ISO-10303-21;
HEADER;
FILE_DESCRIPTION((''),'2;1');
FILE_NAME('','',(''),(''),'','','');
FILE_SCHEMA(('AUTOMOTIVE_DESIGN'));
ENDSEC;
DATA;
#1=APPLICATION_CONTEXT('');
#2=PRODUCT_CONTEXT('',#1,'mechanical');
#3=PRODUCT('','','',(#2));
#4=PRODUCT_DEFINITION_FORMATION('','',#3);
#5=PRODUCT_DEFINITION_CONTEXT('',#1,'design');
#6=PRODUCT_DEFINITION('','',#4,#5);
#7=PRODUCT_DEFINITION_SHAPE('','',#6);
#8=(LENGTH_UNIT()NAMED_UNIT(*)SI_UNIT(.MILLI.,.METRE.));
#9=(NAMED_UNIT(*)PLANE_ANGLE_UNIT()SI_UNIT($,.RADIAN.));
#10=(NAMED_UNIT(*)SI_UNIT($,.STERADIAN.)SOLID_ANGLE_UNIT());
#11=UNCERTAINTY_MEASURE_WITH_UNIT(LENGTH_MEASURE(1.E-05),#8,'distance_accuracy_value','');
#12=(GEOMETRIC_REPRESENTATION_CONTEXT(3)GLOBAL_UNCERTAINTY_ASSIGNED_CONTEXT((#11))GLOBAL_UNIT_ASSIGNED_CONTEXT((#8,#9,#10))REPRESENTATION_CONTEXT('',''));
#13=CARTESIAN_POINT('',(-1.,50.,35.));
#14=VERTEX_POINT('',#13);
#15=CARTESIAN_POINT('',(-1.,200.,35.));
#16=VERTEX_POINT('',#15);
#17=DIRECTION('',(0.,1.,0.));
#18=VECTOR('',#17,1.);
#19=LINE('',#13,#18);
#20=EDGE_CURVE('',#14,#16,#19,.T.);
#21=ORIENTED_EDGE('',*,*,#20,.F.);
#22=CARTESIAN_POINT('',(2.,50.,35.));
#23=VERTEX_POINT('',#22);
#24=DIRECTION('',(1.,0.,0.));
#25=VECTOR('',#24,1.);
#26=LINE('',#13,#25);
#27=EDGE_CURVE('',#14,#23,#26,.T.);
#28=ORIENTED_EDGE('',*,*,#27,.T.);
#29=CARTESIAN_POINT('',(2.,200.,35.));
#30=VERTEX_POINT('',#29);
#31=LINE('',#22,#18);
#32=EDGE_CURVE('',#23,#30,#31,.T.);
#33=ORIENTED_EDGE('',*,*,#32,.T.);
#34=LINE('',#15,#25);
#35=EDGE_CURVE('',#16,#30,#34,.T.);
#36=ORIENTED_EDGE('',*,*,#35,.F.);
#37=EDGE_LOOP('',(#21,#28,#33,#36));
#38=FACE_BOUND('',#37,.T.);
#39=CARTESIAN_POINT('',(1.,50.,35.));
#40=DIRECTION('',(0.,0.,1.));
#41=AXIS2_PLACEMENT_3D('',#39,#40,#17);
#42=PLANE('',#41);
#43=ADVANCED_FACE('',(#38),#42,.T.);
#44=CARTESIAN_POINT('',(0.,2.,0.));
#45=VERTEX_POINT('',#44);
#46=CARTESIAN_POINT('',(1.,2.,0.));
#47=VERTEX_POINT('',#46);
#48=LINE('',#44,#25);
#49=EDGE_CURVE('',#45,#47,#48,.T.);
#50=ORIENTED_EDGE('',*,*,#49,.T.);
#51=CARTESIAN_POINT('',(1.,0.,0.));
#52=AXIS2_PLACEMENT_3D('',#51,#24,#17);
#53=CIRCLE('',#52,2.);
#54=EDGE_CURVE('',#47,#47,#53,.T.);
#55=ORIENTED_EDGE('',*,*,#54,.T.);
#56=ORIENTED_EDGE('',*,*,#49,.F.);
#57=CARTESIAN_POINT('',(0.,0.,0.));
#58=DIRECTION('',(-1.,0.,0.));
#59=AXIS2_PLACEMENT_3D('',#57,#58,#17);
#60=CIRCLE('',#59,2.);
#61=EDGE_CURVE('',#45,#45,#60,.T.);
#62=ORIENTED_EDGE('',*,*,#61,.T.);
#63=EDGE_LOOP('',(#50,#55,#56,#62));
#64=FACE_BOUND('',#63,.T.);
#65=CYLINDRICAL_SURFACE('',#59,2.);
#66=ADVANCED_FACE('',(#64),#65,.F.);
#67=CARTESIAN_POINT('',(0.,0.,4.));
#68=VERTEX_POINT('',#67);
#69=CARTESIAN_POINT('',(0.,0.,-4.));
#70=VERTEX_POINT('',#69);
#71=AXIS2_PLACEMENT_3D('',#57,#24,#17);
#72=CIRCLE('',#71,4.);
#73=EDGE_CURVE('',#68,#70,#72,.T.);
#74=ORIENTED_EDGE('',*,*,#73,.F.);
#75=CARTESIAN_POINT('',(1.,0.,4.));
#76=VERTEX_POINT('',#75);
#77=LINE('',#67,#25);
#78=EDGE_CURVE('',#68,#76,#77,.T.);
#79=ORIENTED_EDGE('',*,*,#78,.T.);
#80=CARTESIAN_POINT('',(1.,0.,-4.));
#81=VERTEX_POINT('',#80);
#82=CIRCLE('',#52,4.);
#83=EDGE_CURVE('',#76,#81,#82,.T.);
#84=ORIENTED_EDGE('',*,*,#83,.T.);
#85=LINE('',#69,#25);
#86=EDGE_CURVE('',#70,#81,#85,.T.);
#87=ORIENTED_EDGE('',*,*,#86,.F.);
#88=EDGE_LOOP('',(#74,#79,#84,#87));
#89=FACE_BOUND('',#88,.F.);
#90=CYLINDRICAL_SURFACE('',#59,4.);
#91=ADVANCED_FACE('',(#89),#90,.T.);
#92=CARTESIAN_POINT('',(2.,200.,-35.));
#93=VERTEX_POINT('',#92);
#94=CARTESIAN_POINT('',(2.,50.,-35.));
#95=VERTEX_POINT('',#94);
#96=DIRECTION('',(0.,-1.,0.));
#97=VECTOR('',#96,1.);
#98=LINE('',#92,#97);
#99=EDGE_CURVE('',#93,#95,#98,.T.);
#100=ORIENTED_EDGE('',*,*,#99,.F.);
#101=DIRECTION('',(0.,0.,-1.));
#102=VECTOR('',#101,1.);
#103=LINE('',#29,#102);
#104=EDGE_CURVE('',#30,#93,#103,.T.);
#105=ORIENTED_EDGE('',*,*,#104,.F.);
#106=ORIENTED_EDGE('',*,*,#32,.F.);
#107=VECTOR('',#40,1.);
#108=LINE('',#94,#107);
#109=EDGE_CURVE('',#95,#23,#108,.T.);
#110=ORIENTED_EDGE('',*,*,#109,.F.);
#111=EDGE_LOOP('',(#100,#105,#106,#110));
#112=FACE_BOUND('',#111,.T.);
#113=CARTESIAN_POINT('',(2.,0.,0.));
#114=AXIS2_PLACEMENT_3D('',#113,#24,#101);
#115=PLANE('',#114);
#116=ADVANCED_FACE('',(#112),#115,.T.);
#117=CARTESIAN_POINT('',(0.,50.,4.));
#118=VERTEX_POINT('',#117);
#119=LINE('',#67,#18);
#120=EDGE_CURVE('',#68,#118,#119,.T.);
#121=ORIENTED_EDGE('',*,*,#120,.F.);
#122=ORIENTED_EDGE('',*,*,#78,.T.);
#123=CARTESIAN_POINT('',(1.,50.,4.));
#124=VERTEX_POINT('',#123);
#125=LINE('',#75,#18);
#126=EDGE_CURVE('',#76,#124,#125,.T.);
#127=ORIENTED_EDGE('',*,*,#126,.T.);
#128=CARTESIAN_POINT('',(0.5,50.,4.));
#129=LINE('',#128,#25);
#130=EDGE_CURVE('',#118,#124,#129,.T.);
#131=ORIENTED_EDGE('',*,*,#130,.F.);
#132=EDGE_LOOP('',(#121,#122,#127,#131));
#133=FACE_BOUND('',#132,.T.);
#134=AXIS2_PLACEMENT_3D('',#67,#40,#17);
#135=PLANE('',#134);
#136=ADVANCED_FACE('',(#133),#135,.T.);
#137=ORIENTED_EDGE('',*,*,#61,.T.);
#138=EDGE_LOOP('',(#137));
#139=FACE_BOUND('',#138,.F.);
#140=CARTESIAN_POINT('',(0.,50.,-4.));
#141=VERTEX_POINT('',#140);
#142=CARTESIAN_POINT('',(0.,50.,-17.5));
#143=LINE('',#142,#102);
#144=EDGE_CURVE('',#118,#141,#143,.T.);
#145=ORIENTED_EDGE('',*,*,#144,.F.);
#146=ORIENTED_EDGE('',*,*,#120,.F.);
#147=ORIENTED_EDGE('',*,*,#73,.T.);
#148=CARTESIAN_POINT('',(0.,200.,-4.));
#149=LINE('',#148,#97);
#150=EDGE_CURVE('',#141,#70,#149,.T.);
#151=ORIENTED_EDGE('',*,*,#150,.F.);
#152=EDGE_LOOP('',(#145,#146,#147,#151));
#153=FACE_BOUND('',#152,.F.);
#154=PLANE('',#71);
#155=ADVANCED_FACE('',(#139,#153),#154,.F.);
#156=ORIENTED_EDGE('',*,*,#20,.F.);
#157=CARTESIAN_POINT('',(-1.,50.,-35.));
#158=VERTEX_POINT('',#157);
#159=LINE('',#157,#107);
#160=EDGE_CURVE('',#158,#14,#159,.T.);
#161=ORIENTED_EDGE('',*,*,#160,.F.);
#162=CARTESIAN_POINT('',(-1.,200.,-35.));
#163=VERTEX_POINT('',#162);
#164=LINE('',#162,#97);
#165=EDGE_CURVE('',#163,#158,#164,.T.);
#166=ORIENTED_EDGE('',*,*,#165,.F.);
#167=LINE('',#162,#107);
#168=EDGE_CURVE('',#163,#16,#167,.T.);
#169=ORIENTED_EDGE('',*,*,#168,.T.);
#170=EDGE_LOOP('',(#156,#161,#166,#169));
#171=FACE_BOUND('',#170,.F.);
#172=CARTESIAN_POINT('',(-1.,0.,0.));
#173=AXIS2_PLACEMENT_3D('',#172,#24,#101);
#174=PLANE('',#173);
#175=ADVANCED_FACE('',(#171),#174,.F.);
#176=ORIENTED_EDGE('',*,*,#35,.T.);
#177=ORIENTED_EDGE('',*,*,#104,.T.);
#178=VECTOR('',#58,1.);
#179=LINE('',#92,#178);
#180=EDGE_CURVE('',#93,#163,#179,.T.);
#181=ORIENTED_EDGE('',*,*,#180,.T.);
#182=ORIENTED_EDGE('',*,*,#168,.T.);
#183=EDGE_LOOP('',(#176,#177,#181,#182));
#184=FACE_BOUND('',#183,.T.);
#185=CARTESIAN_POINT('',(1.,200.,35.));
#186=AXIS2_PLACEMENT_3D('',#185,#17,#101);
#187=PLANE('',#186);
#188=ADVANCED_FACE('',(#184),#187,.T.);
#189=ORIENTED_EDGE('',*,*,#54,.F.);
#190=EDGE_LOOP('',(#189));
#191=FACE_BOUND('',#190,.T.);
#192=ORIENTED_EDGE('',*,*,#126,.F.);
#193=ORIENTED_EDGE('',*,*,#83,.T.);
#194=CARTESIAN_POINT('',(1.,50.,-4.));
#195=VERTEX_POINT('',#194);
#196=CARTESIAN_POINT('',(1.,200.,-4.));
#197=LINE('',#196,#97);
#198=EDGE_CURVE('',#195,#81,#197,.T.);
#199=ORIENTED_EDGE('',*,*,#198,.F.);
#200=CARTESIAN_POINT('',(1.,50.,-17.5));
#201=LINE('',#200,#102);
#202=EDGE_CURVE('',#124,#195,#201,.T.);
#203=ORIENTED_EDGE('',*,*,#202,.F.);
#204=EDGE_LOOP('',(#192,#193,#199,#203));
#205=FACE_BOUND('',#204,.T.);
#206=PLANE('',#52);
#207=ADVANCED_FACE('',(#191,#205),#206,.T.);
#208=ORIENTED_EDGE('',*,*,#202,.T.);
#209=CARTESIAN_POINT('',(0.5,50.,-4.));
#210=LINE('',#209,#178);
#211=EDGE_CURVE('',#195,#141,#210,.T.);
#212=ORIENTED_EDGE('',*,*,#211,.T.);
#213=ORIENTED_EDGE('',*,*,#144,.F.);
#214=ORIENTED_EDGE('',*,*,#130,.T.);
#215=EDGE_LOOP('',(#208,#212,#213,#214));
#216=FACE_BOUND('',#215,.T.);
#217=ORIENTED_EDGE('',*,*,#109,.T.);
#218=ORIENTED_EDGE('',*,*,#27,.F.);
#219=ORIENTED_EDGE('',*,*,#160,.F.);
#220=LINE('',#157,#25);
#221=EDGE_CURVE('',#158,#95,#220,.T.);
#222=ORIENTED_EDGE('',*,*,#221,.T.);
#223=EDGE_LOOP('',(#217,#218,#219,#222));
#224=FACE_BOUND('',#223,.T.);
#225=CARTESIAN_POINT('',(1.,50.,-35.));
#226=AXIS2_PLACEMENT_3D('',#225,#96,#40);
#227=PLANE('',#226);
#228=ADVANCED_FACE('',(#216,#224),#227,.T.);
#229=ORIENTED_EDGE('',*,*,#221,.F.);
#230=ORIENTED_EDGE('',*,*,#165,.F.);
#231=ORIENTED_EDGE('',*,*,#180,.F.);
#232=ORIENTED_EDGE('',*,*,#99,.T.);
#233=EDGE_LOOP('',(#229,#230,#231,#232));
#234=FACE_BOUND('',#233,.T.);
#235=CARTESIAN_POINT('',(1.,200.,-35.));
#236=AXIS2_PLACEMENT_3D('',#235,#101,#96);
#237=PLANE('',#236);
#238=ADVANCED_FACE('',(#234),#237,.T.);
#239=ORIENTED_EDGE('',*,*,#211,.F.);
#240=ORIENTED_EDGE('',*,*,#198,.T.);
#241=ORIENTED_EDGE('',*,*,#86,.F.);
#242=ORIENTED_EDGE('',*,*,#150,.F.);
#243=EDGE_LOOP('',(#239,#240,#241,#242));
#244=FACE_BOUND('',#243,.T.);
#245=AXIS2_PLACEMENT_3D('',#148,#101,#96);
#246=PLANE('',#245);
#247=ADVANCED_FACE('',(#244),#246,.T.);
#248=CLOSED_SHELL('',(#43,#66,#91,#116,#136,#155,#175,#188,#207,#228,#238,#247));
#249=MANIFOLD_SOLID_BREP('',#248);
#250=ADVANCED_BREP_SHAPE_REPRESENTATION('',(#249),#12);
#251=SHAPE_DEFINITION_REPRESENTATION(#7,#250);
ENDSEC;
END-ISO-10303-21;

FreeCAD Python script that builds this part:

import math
import FreeCAD as App
import Part
import Sketcher
from FreeCAD import Vector
Q = App.Units.Quantity

doc = App.newDocument("Part")
body = doc.addObject("PartDesign::Body", "Body")

# Sketch on YZ plane
sketch1 = doc.addObject("Sketcher::SketchObject", "Sketch")
body.addObject(sketch1)
sketch1.AttachmentSupport = (doc.YZ_Plane, [""])
sketch1.MapMode = "FlatFace"
sketch1.addGeometry([
    Part.LineSegment(Vector(0, -4, 0), Vector(200, -4, 0)),  # 0
    Part.LineSegment(Vector(200, -4, 0), Vector(200, 4, 0)),  # 1
    Part.LineSegment(Vector(200, 4, 0), Vector(0, 4, 0)),  # 2
    Part.ArcOfCircle(Part.Circle(Vector(0, 0, 0), Vector(0, 0, 1), 4), math.radians(90), math.radians(270)),  # 3
    Part.Circle(Vector(0, 0, 0), Vector(0, 0, 1), 2),  # 4
], False)
sketch1.addConstraint([
    Sketcher.Constraint("Coincident", 0, 2, 1, 1),
    Sketcher.Constraint("Coincident", 1, 2, 2, 1),
    Sketcher.Constraint("Tangent", 2, 2, 3, 1),
    Sketcher.Constraint("Tangent", 3, 2, 0, 1),
    Sketcher.Constraint("Horizontal", 0),
    Sketcher.Constraint("Vertical", 1),
    Sketcher.Constraint("Horizontal", 2),
    Sketcher.Constraint("Coincident", 3, 3, -1, 1),
    Sketcher.Constraint("Coincident", 4, 3, -1, 1),
    Sketcher.Constraint("Diameter", 4, Q("4 mm")),
    Sketcher.Constraint("Radius", 3, Q("4 mm")),
    Sketcher.Constraint("DistanceX", 0, 1, 0, 2, Q("200 mm")),
])
pad1 = doc.addObject("PartDesign::Pad", "Pad")
body.addObject(pad1)
pad1.Profile = sketch1
pad1.Length = 1

# Sketch on YZ plane
sketch2 = doc.addObject("Sketcher::SketchObject", "Sketch001")
body.addObject(sketch2)
sketch2.AttachmentSupport = (doc.YZ_Plane, [""])
sketch2.MapMode = "FlatFace"
sketch2.AttachmentOffset = App.Placement(Vector(0, 0, 1), App.Rotation())
sketch2.addGeometry([
    Part.LineSegment(Vector(200, -35, 0), Vector(200, 35, 0)),
    Part.LineSegment(Vector(200, 35, 0), Vector(50, 35, 0)),
    Part.LineSegment(Vector(50, 35, 0), Vector(50, -35, 0)),
    Part.LineSegment(Vector(50, -35, 0), Vector(200, -35, 0)),
], False)
sketch2.addConstraint([
    Sketcher.Constraint("Coincident", 0, 2, 1, 1),
    Sketcher.Constraint("Coincident", 1, 2, 2, 1),
    Sketcher.Constraint("Coincident", 2, 2, 3, 1),
    Sketcher.Constraint("Coincident", 3, 2, 0, 1),
    Sketcher.Constraint("Vertical", 0),
    Sketcher.Constraint("Horizontal", 1),
    Sketcher.Constraint("Vertical", 2),
    Sketcher.Constraint("Horizontal", 3),
    Sketcher.Constraint("DistanceX", 1, 2, 1, 1, Q("150 mm")),
    Sketcher.Constraint("DistanceY", 0, 1, 0, 2, Q("70 mm")),
    Sketcher.Constraint("DistanceX", -1, 1, 0, 2, Q("200 mm")),
    Sketcher.Constraint("DistanceY", -1, 1, 0, 2, Q("35 mm")),
])
pad2 = doc.addObject("PartDesign::Pad", "Pad001")
body.addObject(pad2)
pad2.Profile = sketch2
pad2.Type = "TwoLengths"
pad2.Length = 1
pad2.Length2 = 2

doc.recompute()
